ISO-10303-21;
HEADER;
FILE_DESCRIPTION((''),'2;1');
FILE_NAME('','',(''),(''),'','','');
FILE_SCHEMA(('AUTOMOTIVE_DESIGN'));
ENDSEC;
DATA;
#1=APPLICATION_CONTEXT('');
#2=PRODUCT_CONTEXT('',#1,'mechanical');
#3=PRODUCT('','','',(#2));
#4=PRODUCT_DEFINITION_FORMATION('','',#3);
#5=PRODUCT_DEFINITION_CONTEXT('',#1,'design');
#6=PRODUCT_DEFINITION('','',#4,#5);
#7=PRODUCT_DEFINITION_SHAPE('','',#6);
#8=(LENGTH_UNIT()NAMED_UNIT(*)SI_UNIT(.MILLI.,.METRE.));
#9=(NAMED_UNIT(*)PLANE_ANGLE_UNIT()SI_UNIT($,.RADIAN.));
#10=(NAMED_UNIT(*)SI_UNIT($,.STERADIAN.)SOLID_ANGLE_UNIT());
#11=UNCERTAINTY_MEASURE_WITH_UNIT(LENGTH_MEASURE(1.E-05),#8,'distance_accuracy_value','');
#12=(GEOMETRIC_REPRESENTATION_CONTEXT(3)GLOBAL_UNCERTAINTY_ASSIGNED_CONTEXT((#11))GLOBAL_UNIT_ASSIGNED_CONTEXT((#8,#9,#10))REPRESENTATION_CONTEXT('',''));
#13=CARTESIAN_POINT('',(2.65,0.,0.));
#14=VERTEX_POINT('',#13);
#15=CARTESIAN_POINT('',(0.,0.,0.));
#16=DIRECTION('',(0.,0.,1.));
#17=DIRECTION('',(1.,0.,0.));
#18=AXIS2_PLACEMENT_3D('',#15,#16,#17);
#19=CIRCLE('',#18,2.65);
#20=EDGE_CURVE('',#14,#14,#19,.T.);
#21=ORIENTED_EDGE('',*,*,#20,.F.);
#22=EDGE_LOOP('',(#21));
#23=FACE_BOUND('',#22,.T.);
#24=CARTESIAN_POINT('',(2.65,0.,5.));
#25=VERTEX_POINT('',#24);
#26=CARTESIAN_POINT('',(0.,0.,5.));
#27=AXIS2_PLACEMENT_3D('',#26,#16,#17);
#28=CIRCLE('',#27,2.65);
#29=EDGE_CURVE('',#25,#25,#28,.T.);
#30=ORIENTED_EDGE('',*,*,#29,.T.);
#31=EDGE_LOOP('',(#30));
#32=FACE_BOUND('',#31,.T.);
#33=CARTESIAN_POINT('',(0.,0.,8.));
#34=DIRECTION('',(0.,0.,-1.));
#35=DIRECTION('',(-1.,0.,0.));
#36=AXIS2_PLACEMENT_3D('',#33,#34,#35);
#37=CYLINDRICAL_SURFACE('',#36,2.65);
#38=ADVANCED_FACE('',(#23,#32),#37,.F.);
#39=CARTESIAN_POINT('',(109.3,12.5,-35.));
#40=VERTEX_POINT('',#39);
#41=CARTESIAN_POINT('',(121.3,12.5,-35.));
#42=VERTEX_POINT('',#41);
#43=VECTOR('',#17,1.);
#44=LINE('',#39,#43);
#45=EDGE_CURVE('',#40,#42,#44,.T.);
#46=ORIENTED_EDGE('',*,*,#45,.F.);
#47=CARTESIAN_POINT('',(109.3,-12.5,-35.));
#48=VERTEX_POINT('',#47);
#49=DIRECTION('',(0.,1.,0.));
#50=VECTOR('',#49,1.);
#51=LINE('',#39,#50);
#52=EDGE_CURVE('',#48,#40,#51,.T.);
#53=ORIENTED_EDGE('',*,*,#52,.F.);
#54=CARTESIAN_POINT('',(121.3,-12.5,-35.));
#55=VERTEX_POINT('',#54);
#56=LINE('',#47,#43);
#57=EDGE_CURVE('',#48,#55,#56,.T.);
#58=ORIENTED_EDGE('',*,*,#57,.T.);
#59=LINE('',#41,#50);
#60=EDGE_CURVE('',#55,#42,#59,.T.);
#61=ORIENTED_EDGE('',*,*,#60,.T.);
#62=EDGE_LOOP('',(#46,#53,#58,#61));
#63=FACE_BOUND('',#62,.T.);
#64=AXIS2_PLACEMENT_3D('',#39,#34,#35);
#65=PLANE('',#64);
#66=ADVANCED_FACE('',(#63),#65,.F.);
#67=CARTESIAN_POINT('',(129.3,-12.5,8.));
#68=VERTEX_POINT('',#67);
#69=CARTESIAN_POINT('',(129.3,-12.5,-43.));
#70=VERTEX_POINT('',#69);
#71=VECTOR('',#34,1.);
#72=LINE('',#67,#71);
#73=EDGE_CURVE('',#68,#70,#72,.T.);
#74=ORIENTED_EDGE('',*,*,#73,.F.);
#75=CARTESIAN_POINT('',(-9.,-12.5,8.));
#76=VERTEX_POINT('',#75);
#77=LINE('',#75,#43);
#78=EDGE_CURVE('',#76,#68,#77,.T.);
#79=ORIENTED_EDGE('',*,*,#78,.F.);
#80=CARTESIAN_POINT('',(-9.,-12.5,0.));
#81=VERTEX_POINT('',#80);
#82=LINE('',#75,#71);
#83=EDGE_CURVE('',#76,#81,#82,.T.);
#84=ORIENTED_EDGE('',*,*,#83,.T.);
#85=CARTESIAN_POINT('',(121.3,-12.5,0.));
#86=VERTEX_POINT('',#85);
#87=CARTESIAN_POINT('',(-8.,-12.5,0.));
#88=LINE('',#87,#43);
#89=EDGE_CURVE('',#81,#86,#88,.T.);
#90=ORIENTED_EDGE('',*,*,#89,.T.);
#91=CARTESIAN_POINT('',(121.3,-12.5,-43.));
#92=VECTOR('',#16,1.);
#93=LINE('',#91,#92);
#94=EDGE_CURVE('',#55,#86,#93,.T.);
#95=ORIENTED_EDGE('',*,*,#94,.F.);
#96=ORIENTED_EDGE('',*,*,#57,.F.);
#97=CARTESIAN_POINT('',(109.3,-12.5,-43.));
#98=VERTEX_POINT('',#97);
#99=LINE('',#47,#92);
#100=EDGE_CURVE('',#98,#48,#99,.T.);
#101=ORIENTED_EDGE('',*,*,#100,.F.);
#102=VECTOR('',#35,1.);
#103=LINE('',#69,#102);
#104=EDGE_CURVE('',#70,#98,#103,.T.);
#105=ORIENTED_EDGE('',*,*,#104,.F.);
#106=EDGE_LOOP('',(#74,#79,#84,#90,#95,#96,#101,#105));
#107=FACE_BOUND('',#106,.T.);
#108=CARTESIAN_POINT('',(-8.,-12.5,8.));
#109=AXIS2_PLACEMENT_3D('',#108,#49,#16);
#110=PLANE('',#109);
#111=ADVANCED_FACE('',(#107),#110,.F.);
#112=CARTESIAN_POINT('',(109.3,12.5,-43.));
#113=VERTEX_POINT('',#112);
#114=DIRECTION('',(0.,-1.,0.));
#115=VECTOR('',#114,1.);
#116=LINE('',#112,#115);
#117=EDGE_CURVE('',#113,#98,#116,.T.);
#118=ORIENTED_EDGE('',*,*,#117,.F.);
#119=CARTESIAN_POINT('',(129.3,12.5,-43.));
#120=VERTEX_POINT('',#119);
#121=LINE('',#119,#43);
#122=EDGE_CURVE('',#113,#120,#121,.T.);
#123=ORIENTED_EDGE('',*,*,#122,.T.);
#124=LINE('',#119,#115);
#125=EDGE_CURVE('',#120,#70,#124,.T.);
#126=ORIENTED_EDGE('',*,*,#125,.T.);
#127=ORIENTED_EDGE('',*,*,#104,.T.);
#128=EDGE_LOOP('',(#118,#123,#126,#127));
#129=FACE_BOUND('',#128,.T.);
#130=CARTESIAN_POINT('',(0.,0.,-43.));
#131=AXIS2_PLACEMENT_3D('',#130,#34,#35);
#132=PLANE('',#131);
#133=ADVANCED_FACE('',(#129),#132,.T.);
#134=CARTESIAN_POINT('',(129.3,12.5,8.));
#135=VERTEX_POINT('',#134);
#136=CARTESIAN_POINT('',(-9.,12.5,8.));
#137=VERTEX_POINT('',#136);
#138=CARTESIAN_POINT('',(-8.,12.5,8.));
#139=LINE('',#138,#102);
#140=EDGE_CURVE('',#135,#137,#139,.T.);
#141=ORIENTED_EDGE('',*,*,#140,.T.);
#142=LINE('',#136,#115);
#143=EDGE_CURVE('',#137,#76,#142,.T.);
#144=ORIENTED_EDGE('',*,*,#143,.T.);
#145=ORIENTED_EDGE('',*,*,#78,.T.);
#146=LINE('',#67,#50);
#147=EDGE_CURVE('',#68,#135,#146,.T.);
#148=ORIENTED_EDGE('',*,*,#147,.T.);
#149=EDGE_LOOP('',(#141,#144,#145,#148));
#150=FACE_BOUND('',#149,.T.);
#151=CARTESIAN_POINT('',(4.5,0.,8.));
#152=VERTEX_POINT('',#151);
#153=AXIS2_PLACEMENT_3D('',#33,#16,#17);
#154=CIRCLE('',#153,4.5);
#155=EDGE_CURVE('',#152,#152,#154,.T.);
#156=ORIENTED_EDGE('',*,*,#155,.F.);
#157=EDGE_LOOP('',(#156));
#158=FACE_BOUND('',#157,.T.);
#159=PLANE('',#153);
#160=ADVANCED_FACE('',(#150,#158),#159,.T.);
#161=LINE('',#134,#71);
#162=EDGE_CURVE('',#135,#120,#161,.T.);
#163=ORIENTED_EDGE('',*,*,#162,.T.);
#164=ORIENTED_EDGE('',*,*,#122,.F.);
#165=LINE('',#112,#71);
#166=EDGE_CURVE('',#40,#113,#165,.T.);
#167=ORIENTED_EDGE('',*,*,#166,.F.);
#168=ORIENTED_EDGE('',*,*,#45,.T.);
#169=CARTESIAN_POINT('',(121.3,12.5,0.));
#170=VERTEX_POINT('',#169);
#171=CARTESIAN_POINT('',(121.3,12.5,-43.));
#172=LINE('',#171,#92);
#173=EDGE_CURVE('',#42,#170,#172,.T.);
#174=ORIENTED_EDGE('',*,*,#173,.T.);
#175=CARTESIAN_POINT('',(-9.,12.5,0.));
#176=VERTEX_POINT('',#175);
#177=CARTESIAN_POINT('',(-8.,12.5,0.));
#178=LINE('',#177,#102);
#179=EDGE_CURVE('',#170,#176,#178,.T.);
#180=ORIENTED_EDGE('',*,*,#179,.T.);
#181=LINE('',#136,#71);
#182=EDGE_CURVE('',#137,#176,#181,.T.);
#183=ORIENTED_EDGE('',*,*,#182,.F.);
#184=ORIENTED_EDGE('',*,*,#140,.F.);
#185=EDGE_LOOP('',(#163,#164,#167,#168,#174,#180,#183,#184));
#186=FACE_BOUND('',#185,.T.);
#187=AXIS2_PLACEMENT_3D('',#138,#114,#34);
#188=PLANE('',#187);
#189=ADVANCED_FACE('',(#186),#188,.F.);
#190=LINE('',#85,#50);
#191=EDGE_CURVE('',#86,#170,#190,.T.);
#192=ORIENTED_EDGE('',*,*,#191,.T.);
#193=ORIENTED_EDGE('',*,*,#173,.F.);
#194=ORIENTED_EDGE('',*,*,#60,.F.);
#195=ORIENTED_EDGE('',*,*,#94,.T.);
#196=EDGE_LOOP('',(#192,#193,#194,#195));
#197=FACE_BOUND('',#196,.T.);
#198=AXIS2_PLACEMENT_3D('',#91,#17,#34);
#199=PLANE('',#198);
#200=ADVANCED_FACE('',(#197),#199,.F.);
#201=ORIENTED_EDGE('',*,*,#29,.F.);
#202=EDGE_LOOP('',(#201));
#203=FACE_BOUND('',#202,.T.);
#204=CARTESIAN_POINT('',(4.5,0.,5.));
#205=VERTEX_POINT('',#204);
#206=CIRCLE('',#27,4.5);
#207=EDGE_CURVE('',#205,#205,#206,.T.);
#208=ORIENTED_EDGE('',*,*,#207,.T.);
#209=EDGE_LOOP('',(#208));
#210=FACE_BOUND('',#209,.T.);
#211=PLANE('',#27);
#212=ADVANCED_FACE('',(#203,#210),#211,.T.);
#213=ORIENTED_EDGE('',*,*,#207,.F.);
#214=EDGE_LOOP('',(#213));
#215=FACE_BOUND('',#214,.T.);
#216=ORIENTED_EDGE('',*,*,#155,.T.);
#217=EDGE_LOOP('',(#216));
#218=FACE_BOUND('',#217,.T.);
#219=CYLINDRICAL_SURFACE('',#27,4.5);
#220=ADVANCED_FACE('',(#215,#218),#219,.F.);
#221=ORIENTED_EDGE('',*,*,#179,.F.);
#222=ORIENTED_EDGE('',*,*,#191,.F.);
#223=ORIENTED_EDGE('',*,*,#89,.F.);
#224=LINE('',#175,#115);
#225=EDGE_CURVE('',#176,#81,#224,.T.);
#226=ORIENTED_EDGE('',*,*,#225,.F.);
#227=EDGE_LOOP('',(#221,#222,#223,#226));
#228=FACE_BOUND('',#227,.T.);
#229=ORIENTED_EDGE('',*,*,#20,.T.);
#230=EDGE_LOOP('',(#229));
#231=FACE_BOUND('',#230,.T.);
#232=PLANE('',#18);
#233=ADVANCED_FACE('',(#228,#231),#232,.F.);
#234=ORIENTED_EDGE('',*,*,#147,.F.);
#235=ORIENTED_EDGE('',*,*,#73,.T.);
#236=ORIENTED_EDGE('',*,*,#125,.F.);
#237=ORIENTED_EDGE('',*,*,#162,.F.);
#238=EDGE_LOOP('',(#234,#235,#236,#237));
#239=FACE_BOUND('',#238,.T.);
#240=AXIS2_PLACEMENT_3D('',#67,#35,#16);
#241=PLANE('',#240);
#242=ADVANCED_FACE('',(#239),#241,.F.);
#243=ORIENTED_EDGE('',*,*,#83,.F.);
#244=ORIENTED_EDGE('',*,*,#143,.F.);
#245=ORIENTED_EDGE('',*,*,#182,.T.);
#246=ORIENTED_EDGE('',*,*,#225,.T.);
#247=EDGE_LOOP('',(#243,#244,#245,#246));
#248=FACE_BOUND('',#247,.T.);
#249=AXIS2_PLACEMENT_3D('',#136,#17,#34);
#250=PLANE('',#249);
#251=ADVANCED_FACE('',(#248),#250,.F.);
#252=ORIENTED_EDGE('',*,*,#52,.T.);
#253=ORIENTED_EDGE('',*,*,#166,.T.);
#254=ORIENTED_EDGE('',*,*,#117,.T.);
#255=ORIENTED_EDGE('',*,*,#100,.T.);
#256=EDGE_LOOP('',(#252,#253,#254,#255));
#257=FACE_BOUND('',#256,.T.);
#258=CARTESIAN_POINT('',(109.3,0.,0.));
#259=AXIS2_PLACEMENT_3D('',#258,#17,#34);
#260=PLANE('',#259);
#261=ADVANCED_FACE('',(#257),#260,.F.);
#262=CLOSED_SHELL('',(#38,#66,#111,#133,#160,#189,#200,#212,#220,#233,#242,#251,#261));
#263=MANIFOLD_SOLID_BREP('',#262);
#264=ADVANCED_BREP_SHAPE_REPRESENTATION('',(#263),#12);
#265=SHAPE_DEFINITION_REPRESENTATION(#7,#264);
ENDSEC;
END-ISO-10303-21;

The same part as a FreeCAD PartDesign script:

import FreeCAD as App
import Part
import Sketcher

doc = App.newDocument("Part")
body = doc.addObject("PartDesign::Body", "Body")

# Sketch on XY plane
sketch1 = body.newObject("Sketcher::SketchObject", "Sketch")
sketch1.AttachmentSupport = (doc.getObject("XY_Plane"), [""])
sketch1.MapMode = "FlatFace"
sketch1.addGeometry([
    Part.LineSegment(App.Vector(129.3, 12.5, 0), App.Vector(-9, 12.5, 0)),  # 0
    Part.LineSegment(App.Vector(-9, 12.5, 0), App.Vector(-9, -12.5, 0)),  # 1
    Part.LineSegment(App.Vector(-9, -12.5, 0), App.Vector(129.3, -12.5, 0)),  # 2
    Part.LineSegment(App.Vector(129.3, -12.5, 0), App.Vector(129.3, 12.5, 0)),  # 3
    Part.Circle(App.Vector(0, 0, 0), App.Vector(0, 0, 1), 2.6),  # 4
], False)
sketch1.addConstraint([
    Sketcher.Constraint("Coincident", 0, 2, 1, 1),
    Sketcher.Constraint("Coincident", 1, 2, 2, 1),
    Sketcher.Constraint("Coincident", 2, 2, 3, 1),
    Sketcher.Constraint("Coincident", 3, 2, 0, 1),
    Sketcher.Constraint("Horizontal", 0),
    Sketcher.Constraint("Vertical", 1),
    Sketcher.Constraint("Horizontal", 2),
    Sketcher.Constraint("Vertical", 3),
    Sketcher.Constraint("Coincident", 4, 3, -1, 1),
    Sketcher.Constraint("Diameter", 4, 5.3),
    Sketcher.Constraint("DistanceY", 1, 2, 1, 1, 25.0),
    Sketcher.Constraint("DistanceX", 0, 2, 0, 1, 138.3),
    Sketcher.Constraint("DistanceX", 0, 2, -1, 1, 9.0),
    Sketcher.Constraint("DistanceY", -1, 1, 0, 2, 12.5),
])
pad1 = body.newObject("PartDesign::Pad", "Pad")
pad1.Profile = sketch1
pad1.Length = 8

# Sketch on XY plane
sketch2 = body.newObject("Sketcher::SketchObject", "Sketch001")
sketch2.AttachmentSupport = (doc.getObject("XY_Plane"), [""])
sketch2.MapMode = "FlatFace"
sketch2.addGeometry([
    Part.LineSegment(App.Vector(129, 12, 0), App.Vector(129, -12, 0)),
    Part.LineSegment(App.Vector(129, -12, 0), App.Vector(121, -12, 0)),
    Part.LineSegment(App.Vector(121, -12, 0), App.Vector(121, 12, 0)),
    Part.LineSegment(App.Vector(121, 12, 0), App.Vector(129, 12, 0)),
], False)
sketch2.addConstraint([
    Sketcher.Constraint("Coincident", 0, 2, 1, 1),
    Sketcher.Constraint("Coincident", 1, 2, 2, 1),
    Sketcher.Constraint("Coincident", 2, 2, 3, 1),
    Sketcher.Constraint("Coincident", 3, 2, 0, 1),
    Sketcher.Constraint("Vertical", 0),
    Sketcher.Constraint("Horizontal", 1),
    Sketcher.Constraint("Vertical", 2),
    Sketcher.Constraint("Horizontal", 3),
    Sketcher.Constraint("DistanceX", 1, 2, 1, 1, 8.0),
    Sketcher.Constraint("DistanceY", 0, 2, 0, 1, 25.0),
    Sketcher.Constraint("DistanceX", -1, 1, 0, 2, 129.3),
    Sketcher.Constraint("DistanceY", 0, 2, -1, 1, 12.5),
])
pad2 = body.newObject("PartDesign::Pad", "Pad001")
pad2.Profile = sketch2
pad2.Length = 43
pad2.Reversed = True

# Sketch on YZ plane
sketch3 = body.newObject("Sketcher::SketchObject", "Sketch002")
sketch3.AttachmentSupport = (doc.getObject("YZ_Plane"), [""])
sketch3.MapMode = "FlatFace"
sketch3.AttachmentOffset = App.Placement(App.Vector(0, 0, 121.3), App.Rotation())
sketch3.addGeometry([
    Part.LineSegment(App.Vector(12, -43, 0), App.Vector(-12, -43, 0)),
    Part.LineSegment(App.Vector(-12, -43, 0), App.Vector(-12, -35, 0)),
    Part.LineSegment(App.Vector(-12, -35, 0), App.Vector(12, -35, 0)),
    Part.LineSegment(App.Vector(12, -35, 0), App.Vector(12, -43, 0)),
], False)
sketch3.addConstraint([
    Sketcher.Constraint("Coincident", 0, 2, 1, 1),
    Sketcher.Constraint("Coincident", 1, 2, 2, 1),
    Sketcher.Constraint("Coincident", 2, 2, 3, 1),
    Sketcher.Constraint("Coincident", 3, 2, 0, 1),
    Sketcher.Constraint("Horizontal", 0),
    Sketcher.Constraint("Vertical", 1),
    Sketcher.Constraint("Horizontal", 2),
    Sketcher.Constraint("Vertical", 3),
    Sketcher.Constraint("DistanceX", 0, 2, 0, 1, 25.0),
    Sketcher.Constraint("DistanceY", 1, 1, 1, 2, 8.0),
    Sketcher.Constraint("DistanceY", 0, 2, -1, 1, 43.0),
    Sketcher.Constraint("DistanceX", 0, 2, -1, 1, 12.5),
])
pad3 = body.newObject("PartDesign::Pad", "Pad002")
pad3.Profile = sketch3
pad3.Length = 12
pad3.Reversed = True

# Sketch on XY plane
sketch4 = body.newObject("Sketcher::SketchObject", "Sketch003")
sketch4.AttachmentSupport = (doc.getObject("XY_Plane"), [""])
sketch4.MapMode = "FlatFace"
sketch4.AttachmentOffset = App.Placement(App.Vector(0, 0, 8), App.Rotation())
sketch4.addGeometry(Part.Circle(App.Vector(0, 0, 0), App.Vector(0, 0, 1), 4.5), False)
sketch4.addConstraint([
    Sketcher.Constraint("Coincident", 0, 3, -1, 1),
    Sketcher.Constraint("Diameter", 0, 9.0),
])
pocket1 = body.newObject("PartDesign::Pocket", "Pocket")
pocket1.Profile = sketch4
pocket1.Length = 3

doc.recompute()
